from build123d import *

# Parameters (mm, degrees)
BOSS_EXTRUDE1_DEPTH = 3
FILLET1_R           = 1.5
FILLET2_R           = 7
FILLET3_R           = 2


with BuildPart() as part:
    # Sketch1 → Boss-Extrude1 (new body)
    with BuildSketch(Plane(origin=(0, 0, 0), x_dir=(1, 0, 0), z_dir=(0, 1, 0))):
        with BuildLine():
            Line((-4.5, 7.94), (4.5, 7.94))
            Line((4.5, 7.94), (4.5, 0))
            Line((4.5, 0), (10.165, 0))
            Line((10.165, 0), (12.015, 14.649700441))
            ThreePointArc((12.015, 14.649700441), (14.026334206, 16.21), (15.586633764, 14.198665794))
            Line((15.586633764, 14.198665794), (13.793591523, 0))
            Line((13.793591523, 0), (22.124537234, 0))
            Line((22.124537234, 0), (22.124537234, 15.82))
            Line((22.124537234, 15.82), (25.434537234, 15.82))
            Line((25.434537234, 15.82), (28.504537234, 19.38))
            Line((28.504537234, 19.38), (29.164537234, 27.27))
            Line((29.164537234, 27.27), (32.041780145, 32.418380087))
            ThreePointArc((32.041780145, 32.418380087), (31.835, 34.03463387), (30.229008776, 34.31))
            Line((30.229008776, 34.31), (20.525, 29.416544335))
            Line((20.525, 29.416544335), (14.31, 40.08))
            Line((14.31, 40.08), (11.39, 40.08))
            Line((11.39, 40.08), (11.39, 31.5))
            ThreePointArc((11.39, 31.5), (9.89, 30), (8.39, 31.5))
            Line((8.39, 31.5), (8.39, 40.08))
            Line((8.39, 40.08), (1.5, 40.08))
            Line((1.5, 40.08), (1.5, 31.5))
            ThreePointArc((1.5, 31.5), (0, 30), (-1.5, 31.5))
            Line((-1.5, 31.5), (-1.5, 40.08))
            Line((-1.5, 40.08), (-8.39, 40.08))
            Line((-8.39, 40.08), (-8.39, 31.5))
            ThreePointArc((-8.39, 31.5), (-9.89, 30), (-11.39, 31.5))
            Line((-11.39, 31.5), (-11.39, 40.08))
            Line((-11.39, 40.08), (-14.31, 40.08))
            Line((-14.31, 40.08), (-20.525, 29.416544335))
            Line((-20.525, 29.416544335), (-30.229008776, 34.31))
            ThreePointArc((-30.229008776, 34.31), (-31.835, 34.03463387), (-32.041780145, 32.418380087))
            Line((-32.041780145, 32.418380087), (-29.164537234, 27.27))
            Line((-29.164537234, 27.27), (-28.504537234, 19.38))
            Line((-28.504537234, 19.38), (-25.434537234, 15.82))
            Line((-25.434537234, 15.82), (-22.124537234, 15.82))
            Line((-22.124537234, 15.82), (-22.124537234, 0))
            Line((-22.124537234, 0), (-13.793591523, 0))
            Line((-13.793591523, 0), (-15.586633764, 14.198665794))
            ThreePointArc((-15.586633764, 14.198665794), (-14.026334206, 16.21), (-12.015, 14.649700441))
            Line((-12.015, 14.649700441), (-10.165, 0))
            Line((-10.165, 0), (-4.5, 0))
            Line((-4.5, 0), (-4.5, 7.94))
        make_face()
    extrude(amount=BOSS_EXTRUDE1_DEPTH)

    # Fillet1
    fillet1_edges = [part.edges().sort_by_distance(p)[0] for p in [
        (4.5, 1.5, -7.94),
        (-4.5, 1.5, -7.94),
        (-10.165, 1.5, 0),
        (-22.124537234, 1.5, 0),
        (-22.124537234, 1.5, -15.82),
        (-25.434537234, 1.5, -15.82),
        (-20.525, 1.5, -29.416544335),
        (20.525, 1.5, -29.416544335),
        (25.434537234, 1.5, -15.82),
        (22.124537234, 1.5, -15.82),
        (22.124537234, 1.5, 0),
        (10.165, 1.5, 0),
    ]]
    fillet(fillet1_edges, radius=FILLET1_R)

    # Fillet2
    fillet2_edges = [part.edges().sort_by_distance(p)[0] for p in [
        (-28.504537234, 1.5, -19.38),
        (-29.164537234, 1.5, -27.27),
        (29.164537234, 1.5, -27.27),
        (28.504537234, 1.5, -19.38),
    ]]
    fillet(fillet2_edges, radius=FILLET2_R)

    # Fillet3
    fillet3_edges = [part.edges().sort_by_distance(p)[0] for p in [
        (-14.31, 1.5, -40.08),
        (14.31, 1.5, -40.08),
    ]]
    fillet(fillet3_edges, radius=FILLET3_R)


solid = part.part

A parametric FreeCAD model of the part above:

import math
import FreeCAD as App
import Part
import Sketcher

V = App.Vector
Q = App.Units.Quantity


def edges_at(feature, points):
    """Names of the edges that pass closest to the given points."""
    edges = feature.Shape.Edges
    near = lambda p: min(range(len(edges)), key=lambda i: edges[i].distToShape(Part.Vertex(*p))[0])
    return sorted({f"Edge{near(p) + 1}" for p in points})

doc = App.newDocument("Part")
body = doc.addObject("PartDesign::Body", "Body")

# Sketch on XZ plane
sketch1 = body.newObject("Sketcher::SketchObject", "Sketch")
sketch1.AttachmentSupport = (doc.getObject("XZ_Plane"), [""])
sketch1.MapMode = "FlatFace"
sketch1.addGeometry([
    Part.LineSegment(V(-4.5, -7.94, 0), V(4.5, -7.94, 0)),  # 0
    Part.LineSegment(V(4.5, -7.94, 0), V(4.5, 0, 0)),  # 1
    Part.LineSegment(V(4.5, 0, 0), V(10.165, 0, 0)),  # 2
    Part.LineSegment(V(10.165, 0, 0), V(12.015, -14.6497, 0)),  # 3
    Part.ArcOfCircle(Part.Circle(V(13.800817, -14.424183, 0), V(0, 0, 1), 1.8), math.radians(-172.802647), math.radians(7.197353)),  # 4
    Part.LineSegment(V(15.586634, -14.198666, 0), V(13.793592, 0, 0)),  # 5
    Part.LineSegment(V(13.793592, 0, 0), V(22.124537, 0, 0)),  # 6
    Part.LineSegment(V(22.124537, 0, 0), V(22.124537, -15.82, 0)),  # 7
    Part.LineSegment(V(22.124537, -15.82, 0), V(25.434537, -15.82, 0)),  # 8
    Part.LineSegment(V(25.434537, -15.82, 0), V(28.504537, -19.38, 0)),  # 9
    Part.LineSegment(V(28.504537, -19.38, 0), V(29.164537, -27.27, 0)),  # 10
    Part.LineSegment(V(29.164537, -27.27, 0), V(32.04178, -32.41838, 0)),  # 11
    Part.ArcOfCircle(Part.Circle(V(30.845868, -33.086732, 0), V(0, 0, 1), 1.37), math.radians(-116.76051), math.radians(29.199241)),  # 12
    Part.LineSegment(V(30.229009, -34.31, 0), V(20.525, -29.416544, 0)),  # 13
    Part.LineSegment(V(20.525, -29.416544, 0), V(14.31, -40.08, 0)),  # 14
    Part.LineSegment(V(14.31, -40.08, 0), V(11.39, -40.08, 0)),  # 15
    Part.LineSegment(V(11.39, -40.08, 0), V(11.39, -31.5, 0)),  # 16
    Part.ArcOfCircle(Part.Circle(V(9.89, -31.5, 0), V(0, 0, 1), 1.5), math.radians(0), math.radians(180)),  # 17
    Part.LineSegment(V(8.39, -31.5, 0), V(8.39, -40.08, 0)),  # 18
    Part.LineSegment(V(8.39, -40.08, 0), V(1.5, -40.08, 0)),  # 19
    Part.LineSegment(V(1.5, -40.08, 0), V(1.5, -31.5, 0)),  # 20
    Part.ArcOfCircle(Part.Circle(V(0, -31.5, 0), V(0, 0, 1), 1.5), math.radians(0), math.radians(180)),  # 21
    Part.LineSegment(V(-1.5, -31.5, 0), V(-1.5, -40.08, 0)),  # 22
    Part.LineSegment(V(-1.5, -40.08, 0), V(-8.39, -40.08, 0)),  # 23
    Part.LineSegment(V(-8.39, -40.08, 0), V(-8.39, -31.5, 0)),  # 24
    Part.ArcOfCircle(Part.Circle(V(-9.89, -31.5, 0), V(0, 0, 1), 1.5), math.radians(0), math.radians(180)),  # 25
    Part.LineSegment(V(-11.39, -31.5, 0), V(-11.39, -40.08, 0)),  # 26
    Part.LineSegment(V(-11.39, -40.08, 0), V(-14.31, -40.08, 0)),  # 27
    Part.LineSegment(V(-14.31, -40.08, 0), V(-20.525, -29.416544, 0)),  # 28
    Part.LineSegment(V(-20.525, -29.416544, 0), V(-30.229009, -34.31, 0)),  # 29
    Part.ArcOfCircle(Part.Circle(V(-30.845868, -33.086732, 0), V(0, 0, 1), 1.37), math.radians(150.800759), math.radians(296.76051)),  # 30
    Part.LineSegment(V(-32.04178, -32.41838, 0), V(-29.164537, -27.27, 0)),  # 31
    Part.LineSegment(V(-29.164537, -27.27, 0), V(-28.504537, -19.38, 0)),  # 32
    Part.LineSegment(V(-28.504537, -19.38, 0), V(-25.434537, -15.82, 0)),  # 33
    Part.LineSegment(V(-25.434537, -15.82, 0), V(-22.124537, -15.82, 0)),  # 34
    Part.LineSegment(V(-22.124537, -15.82, 0), V(-22.124537, 0, 0)),  # 35
    Part.LineSegment(V(-22.124537, 0, 0), V(-13.793592, 0, 0)),  # 36
    Part.LineSegment(V(-13.793592, 0, 0), V(-15.586634, -14.198666, 0)),  # 37
    Part.ArcOfCircle(Part.Circle(V(-13.800817, -14.424183, 0), V(0, 0, 1), 1.8), math.radians(172.802647), math.radians(352.802647)),  # 38
    Part.LineSegment(V(-12.015, -14.6497, 0), V(-10.165, 0, 0)),  # 39
    Part.LineSegment(V(-10.165, 0, 0), V(-4.5, 0, 0)),  # 40
    Part.LineSegment(V(-4.5, 0, 0), V(-4.5, -7.94, 0)),  # 41
], False)
sketch1.addConstraint([
    Sketcher.Constraint("Coincident", 0, 2, 1, 1),
    Sketcher.Constraint("Coincident", 1, 2, 2, 1),
    Sketcher.Constraint("Coincident", 2, 2, 3, 1),
    Sketcher.Constraint("Tangent", 3, 2, 4, 1),
    Sketcher.Constraint("Tangent", 4, 2, 5, 1),
    Sketcher.Constraint("Coincident", 5, 2, 6, 1),
    Sketcher.Constraint("Coincident", 6, 2, 7, 1),
    Sketcher.Constraint("Coincident", 7, 2, 8, 1),
    Sketcher.Constraint("Coincident", 8, 2, 9, 1),
    Sketcher.Constraint("Coincident", 9, 2, 10, 1),
    Sketcher.Constraint("Coincident", 10, 2, 11, 1),
    Sketcher.Constraint("Tangent", 11, 2, 12, 2),
    Sketcher.Constraint("Tangent", 12, 1, 13, 1),
    Sketcher.Constraint("Coincident", 13, 2, 14, 1),
    Sketcher.Constraint("Coincident", 14, 2, 15, 1),
    Sketcher.Constraint("Coincident", 15, 2, 16, 1),
    Sketcher.Constraint("Tangent", 16, 2, 17, 1),
    Sketcher.Constraint("Tangent", 17, 2, 18, 1),
    Sketcher.Constraint("Coincident", 18, 2, 19, 1),
    Sketcher.Constraint("Coincident", 19, 2, 20, 1),
    Sketcher.Constraint("Tangent", 20, 2, 21, 1),
    Sketcher.Constraint("Tangent", 21, 2, 22, 1),
    Sketcher.Constraint("Coincident", 22, 2, 23, 1),
    Sketcher.Constraint("Coincident", 23, 2, 24, 1),
    Sketcher.Constraint("Tangent", 24, 2, 25, 1),
    Sketcher.Constraint("Tangent", 25, 2, 26, 1),
    Sketcher.Constraint("Coincident", 26, 2, 27, 1),
    Sketcher.Constraint("Coincident", 27, 2, 28, 1),
    Sketcher.Constraint("Coincident", 28, 2, 29, 1),
    Sketcher.Constraint("Tangent", 29, 2, 30, 2),
    Sketcher.Constraint("Tangent", 30, 1, 31, 1),
    Sketcher.Constraint("Coincident", 31, 2, 32, 1),
    Sketcher.Constraint("Coincident", 32, 2, 33, 1),
    Sketcher.Constraint("Coincident", 33, 2, 34, 1),
    Sketcher.Constraint("Coincident", 34, 2, 35, 1),
    Sketcher.Constraint("Coincident", 35, 2, 36, 1),
    Sketcher.Constraint("Coincident", 36, 2, 37, 1),
    Sketcher.Constraint("Tangent", 37, 2, 38, 1),
    Sketcher.Constraint("Tangent", 38, 2, 39, 1),
    Sketcher.Constraint("Coincident", 39, 2, 40, 1),
    Sketcher.Constraint("Coincident", 40, 2, 41, 1),
    Sketcher.Constraint("Coincident", 41, 2, 0, 1),
    Sketcher.Constraint("Horizontal", 0),
    Sketcher.Constraint("Vertical", 1),
    Sketcher.Constraint("Horizontal", 2),
    Sketcher.Constraint("Horizontal", 6),
    Sketcher.Constraint("Vertical", 7),
    Sketcher.Constraint("Horizontal", 8),
    Sketcher.Constraint("Horizontal", 15),
    Sketcher.Constraint("Vertical", 16),
    Sketcher.Constraint("Vertical", 18),
    Sketcher.Constraint("Horizontal", 19),
    Sketcher.Constraint("Vertical", 20),
    Sketcher.Constraint("Vertical", 22),
    Sketcher.Constraint("Horizontal", 23),
    Sketcher.Constraint("Vertical", 24),
    Sketcher.Constraint("Vertical", 26),
    Sketcher.Constraint("Horizontal", 27),
    Sketcher.Constraint("Horizontal", 34),
    Sketcher.Constraint("Vertical", 35),
    Sketcher.Constraint("Horizontal", 36),
    Sketcher.Constraint("Horizontal", 40),
    Sketcher.Constraint("Vertical", 41),
    Sketcher.Constraint("Equal", 17, 21),
    Sketcher.Constraint("Equal", 21, 25),
    Sketcher.Constraint("Equal", 12, 30),
    Sketcher.Constraint("Equal", 4, 38),
    Sketcher.Constraint("Symmetric", 6, 2, 35, 2, -1, 1),
    Sketcher.Constraint("Symmetric", 2, 2, 39, 2, -1, 1),
    Sketcher.Constraint("Symmetric", 17, 3, 25, 3, -2),
    Sketcher.Constraint("Symmetric", 12, 3, 30, 3, -2),
    Sketcher.Constraint("Symmetric", 4, 3, 38, 3, -2),
    Sketcher.Constraint("Symmetric", 19, 2, 22, 2, -2),
    Sketcher.Constraint("Symmetric", 14, 2, 27, 2, -2),
    Sketcher.Constraint("Symmetric", 13, 2, 28, 2, -2),
    Sketcher.Constraint("Symmetric", 10, 2, 31, 2, -2),
    Sketcher.Constraint("Symmetric", 9, 2, 32, 2, -2),
    Sketcher.Constraint("Symmetric", 8, 2, 33, 2, -2),
    Sketcher.Constraint("Symmetric", 5, 2, 36, 2, -2),
    Sketcher.Constraint("Symmetric", 1, 2, 40, 2, -2),
    Sketcher.Constraint("Parallel", 3, 5),
    Sketcher.Constraint("Horizontal", 17, 3, 21, 3),
    Sketcher.Constraint("Horizontal", 15, 2, 18, 2),
    Sketcher.Constraint("Radius", 4, Q("1.8 mm")),
    Sketcher.Constraint("Radius", 17, Q("1.5 mm")),
    Sketcher.Constraint("DistanceX", 0, 1, 0, 2, Q("9 mm")),
    Sketcher.Constraint("Radius", 12, Q("1.37 mm")),
    Sketcher.Constraint("DistanceX", 8, 1, 8, 2, Q("3.31 mm")),
    Sketcher.Constraint("DistanceX", 15, 2, 15, 1, Q("2.92 mm")),
    Sketcher.Constraint("DistanceX", 19, 2, 19, 1, Q("6.89 mm")),
    Sketcher.Constraint("DistanceY", 1, 1, 1, 2, Q("7.94 mm")),
    Sketcher.Constraint("DistanceY", 7, 2, 7, 1, Q("15.82 mm")),
    Sketcher.Constraint("DistanceY", 16, 1, 16, 2, Q("8.58 mm")),
    Sketcher.Constraint("DistanceY", 17, 3, -1, 1, Q("31.5 mm")),
    Sketcher.Constraint("DistanceX", 2, 1, 2, 2, Q("5.665 mm")),
    Sketcher.Constraint("DistanceY", 9, 2, -1, 1, Q("19.38 mm")),
    Sketcher.Constraint("DistanceY", 10, 2, -1, 1, Q("27.27 mm")),
    Sketcher.Constraint("DistanceY", 12, 1, -1, 1, Q("34.31 mm")),
    Sketcher.Constraint("DistanceX", 2, 2, 3, 2, Q("1.85 mm")),
    Sketcher.Constraint("DistanceX", 8, 2, 9, 2, Q("3.07 mm")),
    Sketcher.Constraint("DistanceX", 9, 2, 10, 2, Q("0.66 mm")),
    Sketcher.Constraint("DistanceX", -1, 1, 13, 2, Q("20.525 mm")),
    Sketcher.Constraint("DistanceY", 3, 2, -1, 1, Q("14.6497 mm")),
    Sketcher.Constraint("DistanceX", 6, 1, 6, 2, Q("8.330946 mm")),
    Sketcher.Constraint("DistanceX", -1, 1, 12, 3, Q("30.845868 mm")),
    Sketcher.Constraint("DistanceY", 12, 3, -1, 1, Q("33.086732 mm")),
])
pad1 = body.newObject("PartDesign::Pad", "Pad")
pad1.Profile = sketch1
pad1.Length = 3
pad1.Reversed = True
doc.recompute()

fillet = body.newObject("PartDesign::Fillet", "Fillet")
fillet.Base = (pad1, edges_at(pad1, [
    (4.5, 1.5, -7.94),
    (-4.5, 1.5, -7.94),
    (-10.165, 1.5, 0),
    (-22.125, 1.5, 0),
    (-22.125, 1.5, -15.82),
    (-25.435, 1.5, -15.82),
    (-20.525, 1.5, -29.417),
    (20.525, 1.5, -29.417),
    (25.435, 1.5, -15.82),
    (22.125, 1.5, -15.82),
    (22.125, 1.5, 0),
    (10.165, 1.5, 0),
]))
fillet.Radius = 1.5
doc.recompute()

fillet2 = body.newObject("PartDesign::Fillet", "Fillet001")
fillet2.Base = (fillet, edges_at(fillet, [
    (-28.505, 1.5, -19.38),
    (-29.165, 1.5, -27.27),
    (29.165, 1.5, -27.27),
    (28.505, 1.5, -19.38),
]))
fillet2.Radius = 7
doc.recompute()

fillet3 = body.newObject("PartDesign::Fillet", "Fillet002")
fillet3.Base = (fillet2, edges_at(fillet2, [(-14.31, 1.5, -40.08), (14.31, 1.5, -40.08)]))
fillet3.Radius = 2

doc.recompute()
